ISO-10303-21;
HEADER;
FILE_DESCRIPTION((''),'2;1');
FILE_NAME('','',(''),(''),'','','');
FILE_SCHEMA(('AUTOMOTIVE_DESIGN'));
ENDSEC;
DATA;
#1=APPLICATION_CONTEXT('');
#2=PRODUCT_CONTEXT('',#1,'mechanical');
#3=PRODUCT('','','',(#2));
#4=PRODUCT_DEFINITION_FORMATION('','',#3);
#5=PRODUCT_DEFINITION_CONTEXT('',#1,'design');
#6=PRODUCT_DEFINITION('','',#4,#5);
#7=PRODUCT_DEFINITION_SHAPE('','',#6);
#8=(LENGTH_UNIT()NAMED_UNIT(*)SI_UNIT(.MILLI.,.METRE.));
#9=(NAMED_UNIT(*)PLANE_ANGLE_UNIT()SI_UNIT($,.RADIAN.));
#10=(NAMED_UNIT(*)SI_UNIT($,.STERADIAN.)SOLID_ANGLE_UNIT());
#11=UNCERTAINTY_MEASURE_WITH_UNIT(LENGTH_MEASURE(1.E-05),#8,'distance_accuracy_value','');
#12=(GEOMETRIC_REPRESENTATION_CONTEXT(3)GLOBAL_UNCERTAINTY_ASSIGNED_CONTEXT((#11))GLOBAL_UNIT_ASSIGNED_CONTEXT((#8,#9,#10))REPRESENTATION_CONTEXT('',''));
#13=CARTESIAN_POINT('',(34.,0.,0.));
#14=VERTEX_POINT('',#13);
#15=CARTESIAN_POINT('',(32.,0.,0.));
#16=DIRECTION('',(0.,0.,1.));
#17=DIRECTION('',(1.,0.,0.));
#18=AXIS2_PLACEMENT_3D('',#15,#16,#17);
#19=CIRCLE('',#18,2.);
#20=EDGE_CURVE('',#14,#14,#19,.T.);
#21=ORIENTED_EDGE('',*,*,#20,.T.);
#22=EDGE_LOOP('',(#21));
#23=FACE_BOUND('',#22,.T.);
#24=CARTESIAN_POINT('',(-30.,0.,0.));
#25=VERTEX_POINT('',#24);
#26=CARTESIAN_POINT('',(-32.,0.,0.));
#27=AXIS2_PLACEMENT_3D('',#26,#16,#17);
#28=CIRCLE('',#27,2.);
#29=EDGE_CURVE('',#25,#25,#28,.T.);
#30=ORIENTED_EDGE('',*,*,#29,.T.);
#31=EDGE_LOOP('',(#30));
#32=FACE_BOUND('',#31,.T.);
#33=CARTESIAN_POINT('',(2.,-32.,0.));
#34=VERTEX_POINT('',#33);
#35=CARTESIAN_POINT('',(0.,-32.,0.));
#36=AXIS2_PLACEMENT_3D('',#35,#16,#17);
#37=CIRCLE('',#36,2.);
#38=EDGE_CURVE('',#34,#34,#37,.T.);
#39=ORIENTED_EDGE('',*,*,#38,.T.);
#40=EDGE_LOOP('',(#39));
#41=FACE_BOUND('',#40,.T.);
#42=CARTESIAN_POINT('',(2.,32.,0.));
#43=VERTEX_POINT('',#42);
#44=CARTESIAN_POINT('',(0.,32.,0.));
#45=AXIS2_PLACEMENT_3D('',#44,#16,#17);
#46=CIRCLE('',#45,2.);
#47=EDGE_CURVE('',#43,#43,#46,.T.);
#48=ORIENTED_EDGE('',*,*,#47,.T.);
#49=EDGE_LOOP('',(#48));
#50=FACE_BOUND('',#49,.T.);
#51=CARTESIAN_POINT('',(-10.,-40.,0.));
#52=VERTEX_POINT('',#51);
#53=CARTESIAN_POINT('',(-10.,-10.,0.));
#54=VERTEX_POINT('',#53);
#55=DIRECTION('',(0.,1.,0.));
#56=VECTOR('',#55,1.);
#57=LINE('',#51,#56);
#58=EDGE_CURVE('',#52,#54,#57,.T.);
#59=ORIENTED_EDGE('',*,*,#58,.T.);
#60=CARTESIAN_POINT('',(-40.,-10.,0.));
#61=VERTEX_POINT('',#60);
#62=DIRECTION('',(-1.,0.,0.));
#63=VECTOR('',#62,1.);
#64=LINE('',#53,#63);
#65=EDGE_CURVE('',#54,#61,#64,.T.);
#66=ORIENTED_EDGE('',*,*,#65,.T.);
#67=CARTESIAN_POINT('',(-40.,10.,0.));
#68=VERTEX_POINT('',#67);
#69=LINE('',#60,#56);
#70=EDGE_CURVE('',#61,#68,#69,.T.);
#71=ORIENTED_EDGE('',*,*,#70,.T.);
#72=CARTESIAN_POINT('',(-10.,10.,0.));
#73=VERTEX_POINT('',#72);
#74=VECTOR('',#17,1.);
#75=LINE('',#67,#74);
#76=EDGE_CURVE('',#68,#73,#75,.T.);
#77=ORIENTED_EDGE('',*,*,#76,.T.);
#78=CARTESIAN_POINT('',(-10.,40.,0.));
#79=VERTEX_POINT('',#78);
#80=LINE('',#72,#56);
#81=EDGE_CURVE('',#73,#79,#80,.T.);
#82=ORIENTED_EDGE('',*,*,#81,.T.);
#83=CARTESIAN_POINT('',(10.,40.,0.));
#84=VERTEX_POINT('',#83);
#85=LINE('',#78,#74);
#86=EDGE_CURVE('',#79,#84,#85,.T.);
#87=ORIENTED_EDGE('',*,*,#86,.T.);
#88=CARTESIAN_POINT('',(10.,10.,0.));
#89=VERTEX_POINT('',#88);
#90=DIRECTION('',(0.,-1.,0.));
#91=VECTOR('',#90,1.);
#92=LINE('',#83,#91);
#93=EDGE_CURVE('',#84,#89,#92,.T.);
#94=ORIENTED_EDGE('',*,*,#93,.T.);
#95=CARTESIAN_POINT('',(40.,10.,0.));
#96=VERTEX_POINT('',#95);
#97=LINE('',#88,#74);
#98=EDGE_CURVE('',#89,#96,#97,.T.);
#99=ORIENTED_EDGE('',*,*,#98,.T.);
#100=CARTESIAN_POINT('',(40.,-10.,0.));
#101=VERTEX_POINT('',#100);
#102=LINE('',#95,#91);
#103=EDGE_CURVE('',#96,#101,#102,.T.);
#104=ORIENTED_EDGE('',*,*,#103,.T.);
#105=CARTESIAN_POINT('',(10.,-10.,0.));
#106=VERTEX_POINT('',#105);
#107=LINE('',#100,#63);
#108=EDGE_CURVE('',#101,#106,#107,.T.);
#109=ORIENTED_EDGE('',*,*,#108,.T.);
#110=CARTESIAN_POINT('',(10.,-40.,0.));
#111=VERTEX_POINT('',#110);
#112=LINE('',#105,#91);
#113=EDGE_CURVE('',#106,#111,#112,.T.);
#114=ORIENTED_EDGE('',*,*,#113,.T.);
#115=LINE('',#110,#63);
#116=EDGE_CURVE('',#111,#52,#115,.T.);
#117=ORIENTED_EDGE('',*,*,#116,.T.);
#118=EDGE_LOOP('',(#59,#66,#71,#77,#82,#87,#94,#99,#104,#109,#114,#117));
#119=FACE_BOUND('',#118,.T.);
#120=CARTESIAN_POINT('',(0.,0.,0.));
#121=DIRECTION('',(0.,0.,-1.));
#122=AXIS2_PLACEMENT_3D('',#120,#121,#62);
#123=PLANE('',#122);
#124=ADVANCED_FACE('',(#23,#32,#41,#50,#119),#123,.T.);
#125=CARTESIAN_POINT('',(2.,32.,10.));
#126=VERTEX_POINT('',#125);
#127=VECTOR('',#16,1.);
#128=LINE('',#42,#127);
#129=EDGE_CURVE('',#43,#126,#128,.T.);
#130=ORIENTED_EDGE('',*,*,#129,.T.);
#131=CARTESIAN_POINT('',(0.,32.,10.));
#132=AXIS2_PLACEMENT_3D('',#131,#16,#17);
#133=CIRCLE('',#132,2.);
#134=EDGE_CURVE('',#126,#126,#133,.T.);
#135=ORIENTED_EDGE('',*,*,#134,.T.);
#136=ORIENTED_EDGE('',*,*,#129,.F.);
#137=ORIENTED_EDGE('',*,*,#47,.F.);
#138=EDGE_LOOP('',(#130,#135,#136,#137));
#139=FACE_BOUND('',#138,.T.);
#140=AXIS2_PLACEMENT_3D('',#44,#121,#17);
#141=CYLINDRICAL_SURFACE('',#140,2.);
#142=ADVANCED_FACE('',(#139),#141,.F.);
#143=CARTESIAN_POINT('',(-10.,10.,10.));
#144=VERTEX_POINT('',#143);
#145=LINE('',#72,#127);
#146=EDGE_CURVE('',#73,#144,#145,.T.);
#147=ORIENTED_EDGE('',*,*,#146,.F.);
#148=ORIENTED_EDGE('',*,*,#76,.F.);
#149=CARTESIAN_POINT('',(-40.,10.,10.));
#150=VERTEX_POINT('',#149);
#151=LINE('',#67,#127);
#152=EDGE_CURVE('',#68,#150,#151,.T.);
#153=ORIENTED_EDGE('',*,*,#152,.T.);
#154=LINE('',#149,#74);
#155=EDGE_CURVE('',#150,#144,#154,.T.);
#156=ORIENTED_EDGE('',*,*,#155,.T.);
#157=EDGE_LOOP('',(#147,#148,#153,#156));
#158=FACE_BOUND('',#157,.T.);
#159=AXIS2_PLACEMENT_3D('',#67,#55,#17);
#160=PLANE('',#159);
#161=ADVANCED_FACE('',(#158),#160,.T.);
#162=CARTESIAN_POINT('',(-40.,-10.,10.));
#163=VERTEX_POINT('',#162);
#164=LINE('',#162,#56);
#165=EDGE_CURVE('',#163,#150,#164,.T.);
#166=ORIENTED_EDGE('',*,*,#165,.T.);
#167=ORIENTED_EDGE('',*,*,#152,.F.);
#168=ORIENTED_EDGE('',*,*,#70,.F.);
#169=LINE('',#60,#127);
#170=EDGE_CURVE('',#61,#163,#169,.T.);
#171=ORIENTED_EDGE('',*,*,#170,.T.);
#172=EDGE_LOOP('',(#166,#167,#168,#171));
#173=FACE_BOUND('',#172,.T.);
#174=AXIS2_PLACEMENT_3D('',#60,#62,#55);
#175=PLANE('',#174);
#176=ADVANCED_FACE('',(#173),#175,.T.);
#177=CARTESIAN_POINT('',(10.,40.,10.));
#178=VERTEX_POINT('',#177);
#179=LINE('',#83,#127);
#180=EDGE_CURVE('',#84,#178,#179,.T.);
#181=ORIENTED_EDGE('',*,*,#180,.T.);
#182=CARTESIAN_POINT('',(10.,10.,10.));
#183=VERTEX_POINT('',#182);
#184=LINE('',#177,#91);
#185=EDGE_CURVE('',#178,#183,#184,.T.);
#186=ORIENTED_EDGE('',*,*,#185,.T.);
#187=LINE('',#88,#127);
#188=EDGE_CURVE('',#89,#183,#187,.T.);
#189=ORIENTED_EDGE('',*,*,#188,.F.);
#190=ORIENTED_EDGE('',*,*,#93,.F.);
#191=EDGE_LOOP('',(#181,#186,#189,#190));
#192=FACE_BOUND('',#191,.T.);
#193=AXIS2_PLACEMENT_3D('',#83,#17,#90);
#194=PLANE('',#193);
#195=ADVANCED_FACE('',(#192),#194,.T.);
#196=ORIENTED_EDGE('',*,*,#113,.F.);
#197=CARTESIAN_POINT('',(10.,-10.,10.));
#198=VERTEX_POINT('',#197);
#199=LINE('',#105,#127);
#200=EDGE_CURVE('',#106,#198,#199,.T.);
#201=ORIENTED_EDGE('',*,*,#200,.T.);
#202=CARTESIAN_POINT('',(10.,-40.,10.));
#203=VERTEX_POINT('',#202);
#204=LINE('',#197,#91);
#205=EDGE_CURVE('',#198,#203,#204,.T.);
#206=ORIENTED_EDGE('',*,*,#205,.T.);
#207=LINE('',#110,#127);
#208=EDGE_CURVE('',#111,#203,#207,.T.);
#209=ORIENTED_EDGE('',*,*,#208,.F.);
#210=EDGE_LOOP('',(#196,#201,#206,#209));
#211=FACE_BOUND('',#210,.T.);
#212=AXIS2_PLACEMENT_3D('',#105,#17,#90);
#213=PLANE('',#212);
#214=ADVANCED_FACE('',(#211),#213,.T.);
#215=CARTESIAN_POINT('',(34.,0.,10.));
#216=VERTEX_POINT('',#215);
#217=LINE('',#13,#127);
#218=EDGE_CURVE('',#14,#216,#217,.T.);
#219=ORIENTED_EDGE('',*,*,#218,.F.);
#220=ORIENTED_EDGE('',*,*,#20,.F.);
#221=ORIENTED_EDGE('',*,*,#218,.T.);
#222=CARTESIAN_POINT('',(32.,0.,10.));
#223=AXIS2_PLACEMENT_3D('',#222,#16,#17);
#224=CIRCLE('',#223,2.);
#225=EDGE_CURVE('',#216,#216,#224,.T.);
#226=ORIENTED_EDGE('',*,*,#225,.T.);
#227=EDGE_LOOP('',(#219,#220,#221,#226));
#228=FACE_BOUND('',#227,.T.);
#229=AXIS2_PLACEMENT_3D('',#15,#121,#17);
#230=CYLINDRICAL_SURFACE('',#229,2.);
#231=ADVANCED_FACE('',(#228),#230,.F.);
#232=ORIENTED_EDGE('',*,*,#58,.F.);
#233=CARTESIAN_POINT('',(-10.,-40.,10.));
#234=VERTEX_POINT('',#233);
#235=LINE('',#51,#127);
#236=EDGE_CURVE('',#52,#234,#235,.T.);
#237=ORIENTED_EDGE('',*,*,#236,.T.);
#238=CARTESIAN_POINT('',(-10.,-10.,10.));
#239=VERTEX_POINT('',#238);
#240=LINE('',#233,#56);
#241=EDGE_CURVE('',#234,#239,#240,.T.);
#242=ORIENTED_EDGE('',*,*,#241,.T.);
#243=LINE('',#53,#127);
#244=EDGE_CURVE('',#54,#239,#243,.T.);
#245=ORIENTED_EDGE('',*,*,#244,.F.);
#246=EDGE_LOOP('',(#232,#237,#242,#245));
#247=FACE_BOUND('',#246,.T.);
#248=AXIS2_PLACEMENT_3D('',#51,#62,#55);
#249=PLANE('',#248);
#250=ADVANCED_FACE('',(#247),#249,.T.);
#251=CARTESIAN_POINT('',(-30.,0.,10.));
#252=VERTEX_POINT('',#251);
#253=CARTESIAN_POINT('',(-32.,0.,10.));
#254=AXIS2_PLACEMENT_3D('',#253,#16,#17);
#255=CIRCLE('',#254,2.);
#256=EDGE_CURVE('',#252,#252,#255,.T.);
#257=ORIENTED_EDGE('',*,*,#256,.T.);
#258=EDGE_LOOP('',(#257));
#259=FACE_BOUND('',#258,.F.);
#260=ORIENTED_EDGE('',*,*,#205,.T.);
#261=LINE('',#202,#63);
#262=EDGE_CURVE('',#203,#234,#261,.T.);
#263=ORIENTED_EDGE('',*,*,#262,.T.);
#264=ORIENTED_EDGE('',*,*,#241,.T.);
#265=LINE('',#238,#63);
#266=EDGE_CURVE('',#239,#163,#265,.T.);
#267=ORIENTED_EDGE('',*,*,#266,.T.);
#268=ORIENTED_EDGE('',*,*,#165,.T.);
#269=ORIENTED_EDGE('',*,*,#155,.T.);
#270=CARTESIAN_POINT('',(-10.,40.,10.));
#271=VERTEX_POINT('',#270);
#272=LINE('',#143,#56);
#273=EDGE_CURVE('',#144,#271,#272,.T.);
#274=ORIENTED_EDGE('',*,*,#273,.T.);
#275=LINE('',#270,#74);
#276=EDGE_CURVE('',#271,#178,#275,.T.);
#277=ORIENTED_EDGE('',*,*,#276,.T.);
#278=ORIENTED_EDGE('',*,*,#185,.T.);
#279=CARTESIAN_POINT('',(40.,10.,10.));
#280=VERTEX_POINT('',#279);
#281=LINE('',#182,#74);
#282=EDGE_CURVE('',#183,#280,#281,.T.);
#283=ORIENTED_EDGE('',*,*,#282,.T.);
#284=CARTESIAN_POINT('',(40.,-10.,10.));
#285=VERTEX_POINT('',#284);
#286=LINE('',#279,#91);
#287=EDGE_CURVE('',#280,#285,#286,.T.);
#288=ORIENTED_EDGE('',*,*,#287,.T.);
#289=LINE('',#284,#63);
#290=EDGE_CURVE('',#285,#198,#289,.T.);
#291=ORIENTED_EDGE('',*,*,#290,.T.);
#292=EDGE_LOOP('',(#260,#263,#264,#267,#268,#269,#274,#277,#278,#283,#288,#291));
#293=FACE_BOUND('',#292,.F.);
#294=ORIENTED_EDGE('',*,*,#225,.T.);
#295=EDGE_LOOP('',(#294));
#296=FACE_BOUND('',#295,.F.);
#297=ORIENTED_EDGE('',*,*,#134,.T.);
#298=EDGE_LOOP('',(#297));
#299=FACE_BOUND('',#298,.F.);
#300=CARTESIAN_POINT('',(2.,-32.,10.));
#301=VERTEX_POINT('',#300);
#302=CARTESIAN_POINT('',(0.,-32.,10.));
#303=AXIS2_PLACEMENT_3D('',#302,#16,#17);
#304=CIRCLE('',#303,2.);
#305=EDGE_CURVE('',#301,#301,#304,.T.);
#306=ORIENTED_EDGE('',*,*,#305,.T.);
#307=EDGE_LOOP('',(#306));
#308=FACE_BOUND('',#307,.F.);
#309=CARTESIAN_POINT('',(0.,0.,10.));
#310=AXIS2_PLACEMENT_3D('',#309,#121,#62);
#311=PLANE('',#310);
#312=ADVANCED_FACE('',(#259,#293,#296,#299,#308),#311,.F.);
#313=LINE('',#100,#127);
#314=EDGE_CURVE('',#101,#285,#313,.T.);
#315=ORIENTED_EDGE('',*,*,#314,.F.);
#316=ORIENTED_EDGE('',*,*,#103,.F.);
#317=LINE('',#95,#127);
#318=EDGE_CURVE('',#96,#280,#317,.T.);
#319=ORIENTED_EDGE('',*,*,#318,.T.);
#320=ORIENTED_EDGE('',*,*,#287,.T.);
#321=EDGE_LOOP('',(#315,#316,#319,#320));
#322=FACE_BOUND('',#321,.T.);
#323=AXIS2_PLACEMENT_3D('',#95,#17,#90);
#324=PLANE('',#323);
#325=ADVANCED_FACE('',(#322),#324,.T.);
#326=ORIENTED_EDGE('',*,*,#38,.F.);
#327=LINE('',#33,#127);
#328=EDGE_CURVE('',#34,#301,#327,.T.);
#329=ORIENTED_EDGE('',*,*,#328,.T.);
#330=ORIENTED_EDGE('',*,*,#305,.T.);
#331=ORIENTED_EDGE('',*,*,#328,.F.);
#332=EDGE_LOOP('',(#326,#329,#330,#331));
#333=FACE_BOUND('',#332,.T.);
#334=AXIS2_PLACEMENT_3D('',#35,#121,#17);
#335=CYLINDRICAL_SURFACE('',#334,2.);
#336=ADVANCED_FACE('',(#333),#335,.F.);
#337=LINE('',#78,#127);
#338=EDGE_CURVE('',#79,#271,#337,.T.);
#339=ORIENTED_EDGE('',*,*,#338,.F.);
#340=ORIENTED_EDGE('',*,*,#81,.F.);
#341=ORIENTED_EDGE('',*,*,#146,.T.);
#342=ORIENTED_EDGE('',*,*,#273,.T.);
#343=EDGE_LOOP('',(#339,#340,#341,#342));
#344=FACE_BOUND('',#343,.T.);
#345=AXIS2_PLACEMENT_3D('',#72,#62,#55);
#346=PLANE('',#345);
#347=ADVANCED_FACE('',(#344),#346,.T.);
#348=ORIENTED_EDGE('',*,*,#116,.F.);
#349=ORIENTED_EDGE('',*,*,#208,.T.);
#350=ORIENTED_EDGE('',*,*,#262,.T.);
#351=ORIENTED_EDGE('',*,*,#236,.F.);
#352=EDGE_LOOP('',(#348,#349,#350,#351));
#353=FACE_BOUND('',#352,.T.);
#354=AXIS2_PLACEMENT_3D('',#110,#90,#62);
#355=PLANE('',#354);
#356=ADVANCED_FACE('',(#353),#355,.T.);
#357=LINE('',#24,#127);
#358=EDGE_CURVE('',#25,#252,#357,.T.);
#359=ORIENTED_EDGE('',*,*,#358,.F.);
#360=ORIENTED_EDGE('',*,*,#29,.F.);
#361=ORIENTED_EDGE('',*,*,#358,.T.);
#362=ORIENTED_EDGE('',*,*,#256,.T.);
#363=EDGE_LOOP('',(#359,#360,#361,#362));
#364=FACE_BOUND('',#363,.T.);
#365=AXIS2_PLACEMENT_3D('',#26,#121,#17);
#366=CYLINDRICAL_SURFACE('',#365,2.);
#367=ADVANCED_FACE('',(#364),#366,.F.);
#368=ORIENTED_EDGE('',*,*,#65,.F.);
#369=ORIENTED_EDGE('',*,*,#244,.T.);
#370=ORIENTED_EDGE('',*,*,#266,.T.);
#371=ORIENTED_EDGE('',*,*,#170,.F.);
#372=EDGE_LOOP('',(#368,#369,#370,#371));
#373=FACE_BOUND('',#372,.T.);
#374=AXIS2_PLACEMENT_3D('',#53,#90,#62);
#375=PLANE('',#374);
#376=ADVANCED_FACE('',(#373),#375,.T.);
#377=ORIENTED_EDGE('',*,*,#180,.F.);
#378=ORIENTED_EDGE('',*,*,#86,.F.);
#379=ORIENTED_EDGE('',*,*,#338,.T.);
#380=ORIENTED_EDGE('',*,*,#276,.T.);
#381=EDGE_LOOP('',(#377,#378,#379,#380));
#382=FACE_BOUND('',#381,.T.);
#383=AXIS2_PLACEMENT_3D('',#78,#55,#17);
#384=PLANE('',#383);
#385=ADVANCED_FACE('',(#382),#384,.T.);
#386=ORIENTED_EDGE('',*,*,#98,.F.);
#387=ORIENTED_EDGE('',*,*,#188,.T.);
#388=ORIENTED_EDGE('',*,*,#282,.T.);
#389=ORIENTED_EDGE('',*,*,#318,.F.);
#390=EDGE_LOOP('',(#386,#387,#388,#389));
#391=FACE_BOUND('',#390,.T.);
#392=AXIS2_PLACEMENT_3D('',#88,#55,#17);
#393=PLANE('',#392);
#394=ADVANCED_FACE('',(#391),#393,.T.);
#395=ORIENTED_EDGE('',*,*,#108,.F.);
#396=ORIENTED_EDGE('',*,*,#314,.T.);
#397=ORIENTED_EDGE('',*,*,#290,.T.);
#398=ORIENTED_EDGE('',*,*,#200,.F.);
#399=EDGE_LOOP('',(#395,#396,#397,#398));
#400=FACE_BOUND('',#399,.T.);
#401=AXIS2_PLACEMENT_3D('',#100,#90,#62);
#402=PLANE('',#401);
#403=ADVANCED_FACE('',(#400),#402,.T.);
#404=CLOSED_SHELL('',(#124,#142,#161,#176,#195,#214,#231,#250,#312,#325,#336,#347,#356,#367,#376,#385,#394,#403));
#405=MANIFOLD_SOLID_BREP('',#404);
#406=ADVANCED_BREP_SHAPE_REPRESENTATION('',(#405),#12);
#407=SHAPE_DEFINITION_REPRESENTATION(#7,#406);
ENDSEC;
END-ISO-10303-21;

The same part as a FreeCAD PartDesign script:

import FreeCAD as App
import Part
import Sketcher

V = App.Vector

doc = App.newDocument("Part")
body = doc.addObject("PartDesign::Body", "Body")

# Sketch on XY plane
sketch1 = doc.addObject("Sketcher::SketchObject", "Sketch")
body.addObject(sketch1)
sketch1.AttachmentSupport = (doc.XY_Plane, [""])
sketch1.MapMode = "FlatFace"
sketch1.addGeometry([
    Part.LineSegment(V(10, 40, 0), V(-10, 40, 0)),  # 0
    Part.LineSegment(V(-10, 40, 0), V(-10, 10, 0)),  # 1
    Part.LineSegment(V(-10, 10, 0), V(-40, 10, 0)),  # 2
    Part.LineSegment(V(-40, 10, 0), V(-40, -10, 0)),  # 3
    Part.LineSegment(V(-40, -10, 0), V(-10, -10, 0)),  # 4
    Part.LineSegment(V(-10, -10, 0), V(-10, -40, 0)),  # 5
    Part.LineSegment(V(-10, -40, 0), V(10, -40, 0)),  # 6
    Part.LineSegment(V(10, -40, 0), V(10, -10, 0)),  # 7
    Part.LineSegment(V(10, -10, 0), V(40, -10, 0)),  # 8
    Part.LineSegment(V(40, -10, 0), V(40, 10, 0)),  # 9
    Part.LineSegment(V(40, 10, 0), V(10, 10, 0)),  # 10
    Part.LineSegment(V(10, 10, 0), V(10, 40, 0)),  # 11
    Part.Circle(V(0, -32, 0), V(0, 0, 1), 2),  # 12
    Part.Circle(V(32, 0, 0), V(0, 0, 1), 2),  # 13
    Part.Circle(V(-32, 0, 0), V(0, 0, 1), 2),  # 14
    Part.Circle(V(0, 32, 0), V(0, 0, 1), 2),  # 15
], False)
sketch1.addConstraint([
    Sketcher.Constraint("Coincident", 0, 2, 1, 1),
    Sketcher.Constraint("Coincident", 1, 2, 2, 1),
    Sketcher.Constraint("Coincident", 2, 2, 3, 1),
    Sketcher.Constraint("Coincident", 3, 2, 4, 1),
    Sketcher.Constraint("Coincident", 4, 2, 5, 1),
    Sketcher.Constraint("Coincident", 5, 2, 6, 1),
    Sketcher.Constraint("Coincident", 6, 2, 7, 1),
    Sketcher.Constraint("Coincident", 7, 2, 8, 1),
    Sketcher.Constraint("Coincident", 8, 2, 9, 1),
    Sketcher.Constraint("Coincident", 9, 2, 10, 1),
    Sketcher.Constraint("Coincident", 10, 2, 11, 1),
    Sketcher.Constraint("Coincident", 11, 2, 0, 1),
    Sketcher.Constraint("Horizontal", 0),
    Sketcher.Constraint("Vertical", 1),
    Sketcher.Constraint("Horizontal", 2),
    Sketcher.Constraint("Vertical", 3),
    Sketcher.Constraint("Horizontal", 4),
    Sketcher.Constraint("Vertical", 5),
    Sketcher.Constraint("Horizontal", 6),
    Sketcher.Constraint("Vertical", 7),
    Sketcher.Constraint("Horizontal", 8),
    Sketcher.Constraint("Vertical", 9),
    Sketcher.Constraint("Horizontal", 10),
    Sketcher.Constraint("Vertical", 11),
    Sketcher.Constraint("Equal", 12, 13),
    Sketcher.Constraint("Equal", 13, 14),
    Sketcher.Constraint("Equal", 14, 15),
    Sketcher.Constraint("Symmetric", 13, 3, 14, 3, -1, 1),
    Sketcher.Constraint("Symmetric", 12, 3, 15, 3, -1, 1),
    Sketcher.Constraint("Symmetric", 0, 2, 6, 2, -1, 1),
    Sketcher.Constraint("Symmetric", 2, 2, 8, 2, -1, 1),
    Sketcher.Constraint("Symmetric", 4, 2, 10, 2, -1, 1),
    Sketcher.Constraint("Symmetric", 4, 2, 7, 2, -2),
    Sketcher.Constraint("PointOnObject", 12, 3, -2),
    Sketcher.Constraint("PointOnObject", 13, 3, -1),
    Sketcher.Constraint("Equal", 10, 1),
    Sketcher.Constraint("Equal", 6, 3),
    Sketcher.Constraint("Diameter", 12, 4.0),
    Sketcher.Constraint("DistanceX", 0, 2, 0, 1, 20.0),
    Sketcher.Constraint("DistanceX", 2, 2, 2, 1, 30.0),
    Sketcher.Constraint("DistanceY", 12, 3, -1, 1, 32.0),
    Sketcher.Constraint("DistanceX", -1, 1, 13, 3, 32.0),
])
pad1 = doc.addObject("PartDesign::Pad", "Pad")
body.addObject(pad1)
pad1.Profile = sketch1
pad1.Length = 10

doc.recompute()
